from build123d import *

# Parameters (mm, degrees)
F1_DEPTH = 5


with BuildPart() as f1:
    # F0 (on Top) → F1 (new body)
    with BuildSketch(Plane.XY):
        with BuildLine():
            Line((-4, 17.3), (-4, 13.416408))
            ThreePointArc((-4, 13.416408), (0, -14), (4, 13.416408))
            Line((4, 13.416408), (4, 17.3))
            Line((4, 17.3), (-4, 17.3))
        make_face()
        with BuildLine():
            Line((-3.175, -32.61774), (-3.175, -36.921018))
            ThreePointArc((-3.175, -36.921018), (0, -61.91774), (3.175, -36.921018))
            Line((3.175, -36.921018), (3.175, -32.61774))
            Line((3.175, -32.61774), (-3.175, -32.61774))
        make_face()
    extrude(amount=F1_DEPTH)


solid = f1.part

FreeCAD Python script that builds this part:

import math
import FreeCAD as App
import Part
import Sketcher

V = App.Vector
Q = App.Units.Quantity

doc = App.newDocument("Part")
body = doc.addObject("PartDesign::Body", "Body")
body.AllowCompound = True

# Sketch on XY plane
sketch1 = body.newObject("Sketcher::SketchObject", "Sketch")
sketch1.AttachmentSupport = (doc.getObject("XY_Plane"), [""])
sketch1.MapMode = "FlatFace"
sketch1.addGeometry(Part.LineSegment(V(-4, 17.3, 0), V(-4, 13.4, 0)), False)
sketch1.addGeometry(Part.ArcOfCircle(Part.Circle(V(0, 0, 0), V(0, 0, 1), 14), math.radians(107), math.radians(433)), False)
sketch1.addGeometry(Part.LineSegment(V(4, 13.4, 0), V(4, 17.3, 0)), False)
sketch1.addGeometry(Part.LineSegment(V(4, 17.3, 0), V(-4, 17.3, 0)), False)
sketch1.addGeometry(Part.LineSegment(V(-3.2, -32.6, 0), V(-3.2, -36.9, 0)), False)
sketch1.addGeometry(Part.ArcOfCircle(Part.Circle(V(0, -49.2, 0), V(0, 0, 1), 12.7), math.radians(104), math.radians(436)), False)
sketch1.addGeometry(Part.LineSegment(V(3.2, -36.9, 0), V(3.2, -32.6, 0)), False)
sketch1.addGeometry(Part.LineSegment(V(3.2, -32.6, 0), V(-3.2, -32.6, 0)), False)
sketch1.addConstraint(Sketcher.Constraint("Coincident", 0, 2, 1, 1))
sketch1.addConstraint(Sketcher.Constraint("Coincident", 1, 2, 2, 1))
sketch1.addConstraint(Sketcher.Constraint("Coincident", 2, 2, 3, 1))
sketch1.addConstraint(Sketcher.Constraint("Coincident", 3, 2, 0, 1))
sketch1.addConstraint(Sketcher.Constraint("Coincident", 4, 2, 5, 1))
sketch1.addConstraint(Sketcher.Constraint("Coincident", 5, 2, 6, 1))
sketch1.addConstraint(Sketcher.Constraint("Coincident", 6, 2, 7, 1))
sketch1.addConstraint(Sketcher.Constraint("Coincident", 7, 2, 4, 1))
sketch1.addConstraint(Sketcher.Constraint("Vertical", 0))
sketch1.addConstraint(Sketcher.Constraint("Vertical", 2))
sketch1.addConstraint(Sketcher.Constraint("Horizontal", 3))
sketch1.addConstraint(Sketcher.Constraint("Vertical", 4))
sketch1.addConstraint(Sketcher.Constraint("Vertical", 6))
sketch1.addConstraint(Sketcher.Constraint("Horizontal", 7))
sketch1.addConstraint(Sketcher.Constraint("Coincident", 1, 3, -1, 1))
sketch1.addConstraint(Sketcher.Constraint("Symmetric", 4, 2, 5, 2, -2))
sketch1.addConstraint(Sketcher.Constraint("Horizontal", 0, 2, 1, 2))
sketch1.addConstraint(Sketcher.Constraint("Radius", 1, Q("14 mm")))
sketch1.addConstraint(Sketcher.Constraint("Radius", 5, Q("12.7 mm")))
sketch1.addConstraint(Sketcher.Constraint("DistanceX", 3, 2, 3, 1, Q("8 mm")))
sketch1.addConstraint(Sketcher.Constraint("DistanceX", 7, 2, 7, 1, Q("6.35 mm")))
sketch1.addConstraint(Sketcher.Constraint("DistanceY", -1, 1, 2, 2, Q("17.3 mm")))
sketch1.addConstraint(Sketcher.Constraint("DistanceY", 5, 3, 6, 2, Q("16.6 mm")))
sketch1.addConstraint(Sketcher.Constraint("DistanceY", 5, 3, -1, 1, Q("49.21774 mm")))
pad1 = body.newObject("PartDesign::Pad", "Pad")
pad1.Profile = sketch1
pad1.Length = 5

doc.recompute()
